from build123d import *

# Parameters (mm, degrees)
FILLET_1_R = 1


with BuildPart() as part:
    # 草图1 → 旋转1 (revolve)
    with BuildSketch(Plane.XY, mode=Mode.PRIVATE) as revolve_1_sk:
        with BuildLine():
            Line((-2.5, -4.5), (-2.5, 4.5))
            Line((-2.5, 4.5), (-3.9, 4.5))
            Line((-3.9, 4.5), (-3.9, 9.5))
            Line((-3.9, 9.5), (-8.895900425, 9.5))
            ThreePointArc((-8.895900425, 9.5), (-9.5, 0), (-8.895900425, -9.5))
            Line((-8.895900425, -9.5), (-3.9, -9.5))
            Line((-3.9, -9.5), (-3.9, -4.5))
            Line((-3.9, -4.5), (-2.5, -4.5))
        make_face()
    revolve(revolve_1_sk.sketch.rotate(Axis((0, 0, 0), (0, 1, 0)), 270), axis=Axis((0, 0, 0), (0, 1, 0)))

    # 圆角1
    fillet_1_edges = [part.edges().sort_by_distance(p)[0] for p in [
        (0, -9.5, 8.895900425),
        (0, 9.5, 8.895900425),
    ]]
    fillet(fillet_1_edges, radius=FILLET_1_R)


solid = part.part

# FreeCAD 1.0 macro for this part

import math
import FreeCAD as App
import Part
import Sketcher


def edges_at(feature, points):
    """Names of the edges that pass closest to the given points."""
    edges = feature.Shape.Edges
    near = lambda p: min(range(len(edges)), key=lambda i: edges[i].distToShape(Part.Vertex(*p))[0])
    return sorted({f"Edge{near(p) + 1}" for p in points})

doc = App.newDocument("Part")
params = doc.addObject("Spreadsheet::Sheet", "Params")
for row, (alias, value) in enumerate([
    ("sketch1_radius", "75 mm"),
    ("sketch1_height", "9 mm"),
    ("sketch1_height2", "5 mm"),
    ("sketch1_width", "1.4 mm"),
    ("revolution_angle", "360 deg"),
    ("fillet_radius", "1 mm"),
], start=1):
    params.set(f"A{row}", alias)
    params.set(f"B{row}", "=" + value)
    params.setAlias(f"B{row}", alias)

body = doc.addObject("PartDesign::Body", "Body")

# Sketch on XY plane
sketch1 = doc.addObject("Sketcher::SketchObject", "Sketch")
body.addObject(sketch1)
sketch1.AttachmentSupport = (doc.XY_Plane, [""])
sketch1.MapMode = "FlatFace"
sketch1.addGeometry(Part.LineSegment(App.Vector(-2.5, -4.5, 0), App.Vector(-2.5, 4.5, 0)), False)
sketch1.addGeometry(Part.LineSegment(App.Vector(-2.5, 4.5, 0), App.Vector(-3.9, 4.5, 0)), False)
sketch1.addGeometry(Part.LineSegment(App.Vector(-3.9, 4.5, 0), App.Vector(-3.9, 9.5, 0)), False)
sketch1.addGeometry(Part.LineSegment(App.Vector(-3.9, 9.5, 0), App.Vector(-8.9, 9.5, 0)), False)
sketch1.addGeometry(Part.ArcOfCircle(Part.Circle(App.Vector(65.5, 0, 0), App.Vector(0, 0, 1), 75), math.radians(172.72), math.radians(187.28)), False)
sketch1.addGeometry(Part.LineSegment(App.Vector(-8.9, -9.5, 0), App.Vector(-3.9, -9.5, 0)), False)
sketch1.addGeometry(Part.LineSegment(App.Vector(-3.9, -9.5, 0), App.Vector(-3.9, -4.5, 0)), False)
sketch1.addGeometry(Part.LineSegment(App.Vector(-3.9, -4.5, 0), App.Vector(-2.5, -4.5, 0)), False)
sketch1.addConstraint(Sketcher.Constraint("Coincident", 0, 2, 1, 1))
sketch1.addConstraint(Sketcher.Constraint("Coincident", 1, 2, 2, 1))
sketch1.addConstraint(Sketcher.Constraint("Coincident", 2, 2, 3, 1))
sketch1.addConstraint(Sketcher.Constraint("Coincident", 3, 2, 4, 1))
sketch1.addConstraint(Sketcher.Constraint("Coincident", 4, 2, 5, 1))
sketch1.addConstraint(Sketcher.Constraint("Coincident", 5, 2, 6, 1))
sketch1.addConstraint(Sketcher.Constraint("Coincident", 6, 2, 7, 1))
sketch1.addConstraint(Sketcher.Constraint("Coincident", 7, 2, 0, 1))
sketch1.addConstraint(Sketcher.Constraint("Vertical", 0))
sketch1.addConstraint(Sketcher.Constraint("Horizontal", 1))
sketch1.addConstraint(Sketcher.Constraint("Vertical", 2))
sketch1.addConstraint(Sketcher.Constraint("Horizontal", 3))
sketch1.addConstraint(Sketcher.Constraint("Horizontal", 5))
sketch1.addConstraint(Sketcher.Constraint("Vertical", 6))
sketch1.addConstraint(Sketcher.Constraint("Horizontal", 7))
sketch1.addConstraint(Sketcher.Constraint("Symmetric", 3, 2, 4, 2, -1))
sketch1.addConstraint(Sketcher.Constraint("Symmetric", 1, 2, 6, 2, -1))
sketch1.addConstraint(Sketcher.Constraint("Radius", 4, 75.0))
sketch1.addConstraint(Sketcher.Constraint("DistanceY", 0, 1, 0, 2, 9.0))
sketch1.addConstraint(Sketcher.Constraint("DistanceY", 2, 1, 2, 2, 5.0))
sketch1.addConstraint(Sketcher.Constraint("DistanceX", 1, 2, 1, 1, 1.4))
sketch1.addConstraint(Sketcher.Constraint("DistanceX", 0, 2, 4, 3, 68.0))
sketch1.addConstraint(Sketcher.Constraint("DistanceX", -1, 1, 4, 3, 65.5))
sketch1.setExpression("Constraints[17]", "Params.sketch1_radius")
sketch1.setExpression("Constraints[18]", "Params.sketch1_height")
sketch1.setExpression("Constraints[19]", "Params.sketch1_height2")
sketch1.setExpression("Constraints[20]", "Params.sketch1_width")
revolution = doc.addObject("PartDesign::Revolution", "Revolution")
body.addObject(revolution)
revolution.Profile = sketch1
revolution.ReferenceAxis = (sketch1, ["V_Axis"])
revolution.setExpression("Angle", "Params.revolution_angle")
doc.recompute()

fillet = doc.addObject("PartDesign::Fillet", "Fillet")
body.addObject(fillet)
fillet.Base = (revolution, edges_at(revolution, [(0, -9.5, 8.896), (0, 9.5, 8.896)]))
fillet.setExpression("Radius", "Params.fillet_radius")

doc.recompute()
